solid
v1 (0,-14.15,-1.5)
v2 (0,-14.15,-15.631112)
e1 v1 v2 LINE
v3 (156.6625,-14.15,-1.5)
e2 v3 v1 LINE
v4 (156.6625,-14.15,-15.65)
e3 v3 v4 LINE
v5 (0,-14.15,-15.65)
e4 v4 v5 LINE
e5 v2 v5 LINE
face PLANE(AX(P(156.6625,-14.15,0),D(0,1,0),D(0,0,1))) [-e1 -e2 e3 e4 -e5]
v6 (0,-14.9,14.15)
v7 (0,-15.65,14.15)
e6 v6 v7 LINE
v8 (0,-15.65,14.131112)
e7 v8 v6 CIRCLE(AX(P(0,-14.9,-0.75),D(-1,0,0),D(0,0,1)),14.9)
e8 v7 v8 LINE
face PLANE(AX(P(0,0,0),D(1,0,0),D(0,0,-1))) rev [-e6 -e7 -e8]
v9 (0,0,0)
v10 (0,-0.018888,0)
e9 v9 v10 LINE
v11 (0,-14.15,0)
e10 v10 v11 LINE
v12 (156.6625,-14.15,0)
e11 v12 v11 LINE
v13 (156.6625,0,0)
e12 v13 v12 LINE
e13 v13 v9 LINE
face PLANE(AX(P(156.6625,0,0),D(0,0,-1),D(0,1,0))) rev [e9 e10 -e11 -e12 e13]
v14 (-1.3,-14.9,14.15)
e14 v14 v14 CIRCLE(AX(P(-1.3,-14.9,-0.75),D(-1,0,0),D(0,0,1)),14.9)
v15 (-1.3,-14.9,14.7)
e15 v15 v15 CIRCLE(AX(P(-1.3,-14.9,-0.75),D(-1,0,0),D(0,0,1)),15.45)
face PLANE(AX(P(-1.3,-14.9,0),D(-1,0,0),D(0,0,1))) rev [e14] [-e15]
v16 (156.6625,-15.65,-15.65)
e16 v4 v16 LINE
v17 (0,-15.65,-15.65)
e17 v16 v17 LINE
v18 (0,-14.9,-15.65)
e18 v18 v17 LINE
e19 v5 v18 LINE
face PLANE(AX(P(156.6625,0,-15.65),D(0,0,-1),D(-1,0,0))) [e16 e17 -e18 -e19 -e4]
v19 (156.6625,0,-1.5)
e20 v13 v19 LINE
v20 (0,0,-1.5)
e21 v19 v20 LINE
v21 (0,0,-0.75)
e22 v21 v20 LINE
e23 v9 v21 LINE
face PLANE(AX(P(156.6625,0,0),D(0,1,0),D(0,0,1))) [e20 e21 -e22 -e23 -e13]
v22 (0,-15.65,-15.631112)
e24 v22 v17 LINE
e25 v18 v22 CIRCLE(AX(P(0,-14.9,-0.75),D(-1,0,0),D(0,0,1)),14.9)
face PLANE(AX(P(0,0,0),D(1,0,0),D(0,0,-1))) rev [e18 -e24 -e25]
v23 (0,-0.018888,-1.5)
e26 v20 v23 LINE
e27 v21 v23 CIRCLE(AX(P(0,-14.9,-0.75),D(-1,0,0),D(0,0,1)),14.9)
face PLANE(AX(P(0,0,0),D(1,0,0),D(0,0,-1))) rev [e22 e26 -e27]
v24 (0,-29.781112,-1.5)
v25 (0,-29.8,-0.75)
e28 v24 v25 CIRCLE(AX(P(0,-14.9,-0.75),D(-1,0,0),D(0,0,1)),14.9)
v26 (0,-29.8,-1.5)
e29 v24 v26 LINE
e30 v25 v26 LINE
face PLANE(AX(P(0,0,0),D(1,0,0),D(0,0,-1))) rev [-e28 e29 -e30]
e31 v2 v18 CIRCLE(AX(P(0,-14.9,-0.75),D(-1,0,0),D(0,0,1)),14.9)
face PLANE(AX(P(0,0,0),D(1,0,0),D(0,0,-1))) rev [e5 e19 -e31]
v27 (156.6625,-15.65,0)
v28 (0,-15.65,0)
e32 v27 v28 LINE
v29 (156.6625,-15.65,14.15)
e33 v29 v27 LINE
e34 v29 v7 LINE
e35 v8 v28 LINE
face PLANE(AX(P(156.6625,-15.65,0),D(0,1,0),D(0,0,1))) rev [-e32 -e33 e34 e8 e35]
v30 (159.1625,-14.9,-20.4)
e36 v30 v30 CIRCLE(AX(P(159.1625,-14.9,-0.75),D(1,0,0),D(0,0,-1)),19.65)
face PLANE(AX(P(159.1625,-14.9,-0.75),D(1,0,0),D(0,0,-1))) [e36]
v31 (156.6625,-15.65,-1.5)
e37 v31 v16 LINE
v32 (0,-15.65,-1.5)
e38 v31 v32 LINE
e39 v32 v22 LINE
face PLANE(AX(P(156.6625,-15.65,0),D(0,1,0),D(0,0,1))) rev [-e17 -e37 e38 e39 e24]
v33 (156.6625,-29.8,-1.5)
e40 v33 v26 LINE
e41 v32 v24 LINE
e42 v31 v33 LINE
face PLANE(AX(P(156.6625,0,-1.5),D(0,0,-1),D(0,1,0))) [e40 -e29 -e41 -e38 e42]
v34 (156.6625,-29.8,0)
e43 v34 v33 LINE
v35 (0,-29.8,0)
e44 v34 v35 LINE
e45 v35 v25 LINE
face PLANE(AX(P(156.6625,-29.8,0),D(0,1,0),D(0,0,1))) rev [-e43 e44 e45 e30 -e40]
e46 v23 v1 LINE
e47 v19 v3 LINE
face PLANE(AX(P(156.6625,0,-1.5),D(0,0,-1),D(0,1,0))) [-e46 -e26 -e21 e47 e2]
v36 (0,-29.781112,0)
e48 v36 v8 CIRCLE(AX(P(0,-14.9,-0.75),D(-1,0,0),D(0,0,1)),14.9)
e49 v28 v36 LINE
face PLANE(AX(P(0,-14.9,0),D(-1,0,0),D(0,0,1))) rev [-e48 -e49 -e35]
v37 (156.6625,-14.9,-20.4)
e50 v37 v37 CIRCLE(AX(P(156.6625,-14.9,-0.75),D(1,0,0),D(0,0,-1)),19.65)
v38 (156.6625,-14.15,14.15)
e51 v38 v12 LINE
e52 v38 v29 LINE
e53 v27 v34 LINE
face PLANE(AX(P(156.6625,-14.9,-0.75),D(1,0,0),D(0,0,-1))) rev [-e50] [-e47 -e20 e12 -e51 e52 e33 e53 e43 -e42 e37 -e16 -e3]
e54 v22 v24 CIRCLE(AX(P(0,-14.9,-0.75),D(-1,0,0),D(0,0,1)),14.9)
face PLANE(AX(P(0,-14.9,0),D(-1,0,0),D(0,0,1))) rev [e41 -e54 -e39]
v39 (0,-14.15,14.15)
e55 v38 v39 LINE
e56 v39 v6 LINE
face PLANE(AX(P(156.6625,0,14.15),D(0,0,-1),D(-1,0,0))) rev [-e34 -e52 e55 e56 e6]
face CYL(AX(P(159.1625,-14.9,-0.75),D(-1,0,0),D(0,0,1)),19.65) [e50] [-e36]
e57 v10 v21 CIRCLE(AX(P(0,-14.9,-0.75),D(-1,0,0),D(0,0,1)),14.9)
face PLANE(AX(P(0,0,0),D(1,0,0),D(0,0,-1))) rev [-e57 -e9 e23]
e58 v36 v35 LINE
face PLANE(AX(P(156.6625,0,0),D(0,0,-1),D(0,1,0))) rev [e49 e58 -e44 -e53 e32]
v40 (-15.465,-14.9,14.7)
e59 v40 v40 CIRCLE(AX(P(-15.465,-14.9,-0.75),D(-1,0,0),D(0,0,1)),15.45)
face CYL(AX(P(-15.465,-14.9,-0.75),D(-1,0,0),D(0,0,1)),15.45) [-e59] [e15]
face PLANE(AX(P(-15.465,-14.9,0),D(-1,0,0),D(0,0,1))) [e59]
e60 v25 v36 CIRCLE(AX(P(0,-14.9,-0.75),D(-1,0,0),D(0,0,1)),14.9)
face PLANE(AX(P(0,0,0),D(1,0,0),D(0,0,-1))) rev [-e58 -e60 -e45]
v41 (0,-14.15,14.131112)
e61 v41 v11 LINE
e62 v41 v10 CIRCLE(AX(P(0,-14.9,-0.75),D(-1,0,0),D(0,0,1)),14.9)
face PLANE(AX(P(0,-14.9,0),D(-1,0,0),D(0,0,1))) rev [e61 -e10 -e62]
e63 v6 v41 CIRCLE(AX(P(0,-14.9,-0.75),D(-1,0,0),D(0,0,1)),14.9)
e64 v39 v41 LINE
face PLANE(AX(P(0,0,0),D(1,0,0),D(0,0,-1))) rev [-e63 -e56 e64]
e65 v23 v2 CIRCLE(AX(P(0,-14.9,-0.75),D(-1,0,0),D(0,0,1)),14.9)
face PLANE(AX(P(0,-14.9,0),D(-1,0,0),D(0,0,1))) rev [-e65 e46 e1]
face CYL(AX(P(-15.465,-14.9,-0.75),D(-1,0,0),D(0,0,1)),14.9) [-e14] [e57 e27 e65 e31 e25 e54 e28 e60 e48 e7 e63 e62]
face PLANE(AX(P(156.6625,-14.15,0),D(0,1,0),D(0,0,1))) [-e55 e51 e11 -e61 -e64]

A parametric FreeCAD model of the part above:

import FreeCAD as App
import Part
import Sketcher

V = App.Vector
Q = App.Units.Quantity


def add_polygon(sketch, points):
    """Adds a closed chain of lines whose ends are joined by coincident constraints."""
    first, n = sketch.GeometryCount, len(points)
    for a, b in zip(points, points[1:] + points[:1]):
        sketch.addGeometry(Part.LineSegment(App.Vector(*a, 0), App.Vector(*b, 0)), False)
    for i in range(n):
        sketch.addConstraint(Sketcher.Constraint("Coincident", first + i, 2, first + (i + 1) % n, 1))

doc = App.newDocument("Part")
body = doc.addObject("PartDesign::Body", "Body")

# Sketch on YZ plane
sketch1 = body.newObject("Sketcher::SketchObject", "Sketch")
sketch1.AttachmentSupport = (doc.getObject("YZ_Plane"), [""])
sketch1.MapMode = "FlatFace"
add_polygon(sketch1, [(0, 0), (-14.2, 0), (-14.2, 14.2), (-15.7, 14.2), (-15.7, 0), (-29.8, 0), (-29.8, -1.5), (-15.7, -1.5), (-15.7, -15.7), (-14.2, -15.7), (-14.2, -1.5), (0, -1.5)])  # lines 0-11
sketch1.addConstraint(Sketcher.Constraint("Horizontal", 0))
sketch1.addConstraint(Sketcher.Constraint("Vertical", 1))
sketch1.addConstraint(Sketcher.Constraint("Horizontal", 2))
sketch1.addConstraint(Sketcher.Constraint("Vertical", 3))
sketch1.addConstraint(Sketcher.Constraint("Horizontal", 4))
sketch1.addConstraint(Sketcher.Constraint("Vertical", 5))
sketch1.addConstraint(Sketcher.Constraint("Horizontal", 6))
sketch1.addConstraint(Sketcher.Constraint("Vertical", 7))
sketch1.addConstraint(Sketcher.Constraint("Horizontal", 8))
sketch1.addConstraint(Sketcher.Constraint("Vertical", 9))
sketch1.addConstraint(Sketcher.Constraint("Horizontal", 10))
sketch1.addConstraint(Sketcher.Constraint("Vertical", 11))
sketch1.addConstraint(Sketcher.Constraint("Coincident", 11, 2, -1, 1))
sketch1.addConstraint(Sketcher.Constraint("PointOnObject", 3, 2, -1))
sketch1.addConstraint(Sketcher.Constraint("Horizontal", 6, 2, 9, 2))
sketch1.addConstraint(Sketcher.Constraint("Vertical", 3, 2, 6, 2))
sketch1.addConstraint(Sketcher.Constraint("Vertical", 1, 2, 8, 2))
sketch1.addConstraint(Sketcher.Constraint("Equal", 0, 4))
sketch1.addConstraint(Sketcher.Constraint("Equal", 10, 1))
sketch1.addConstraint(Sketcher.Constraint("Equal", 8, 5))
sketch1.addConstraint(Sketcher.Constraint("Equal", 3, 7))
sketch1.addConstraint(Sketcher.Constraint("DistanceX", 2, 2, 2, 1, Q("1.5 mm")))
sketch1.addConstraint(Sketcher.Constraint("DistanceX", 0, 2, 0, 1, Q("14.15 mm")))
pad1 = body.newObject("PartDesign::Pad", "Pad")
pad1.Profile = sketch1
pad1.Length = 156.6625

# Sketch on YZ plane
sketch2 = body.newObject("Sketcher::SketchObject", "Sketch001")
sketch2.AttachmentSupport = (doc.getObject("YZ_Plane"), [""])
sketch2.MapMode = "FlatFace"
sketch2.AttachmentOffset = App.Placement(V(0, 0, 156.6625), App.Rotation())
sketch2.addGeometry(Part.Circle(V(-15, -1, 0), V(0, 0, 1), 20), False)
sketch2.addConstraint(Sketcher.Constraint("Diameter", 0, Q("39.3 mm")))
sketch2.addConstraint(Sketcher.Constraint("DistanceX", 0, 3, -1, 1, Q("14.9 mm")))
sketch2.addConstraint(Sketcher.Constraint("DistanceY", 0, 3, -1, 1, Q("0.75 mm")))
pad2 = body.newObject("PartDesign::Pad", "Pad001")
pad2.Profile = sketch2
pad2.Length = 2.5

# Sketch on XZ plane
sketch3 = body.newObject("Sketcher::SketchObject", "Sketch002")
sketch3.AttachmentSupport = (doc.getObject("XZ_Plane"), [""])
sketch3.MapMode = "FlatFace"
sketch3.AttachmentOffset = App.Placement(V(0, 0, 14.9), App.Rotation())
add_polygon(sketch3, [(-15.5, -0.8), (0, -0.8), (0, -15.7), (-1.3, -15.7), (-1.3, -16.2), (-15.5, -16.2)])  # lines 0-5
sketch3.addGeometry(Part.LineSegment(V(-15.5, -0.8, 0), V(0, -0.8, 0)), True)  # axis
sketch3.addConstraint(Sketcher.Constraint("Horizontal", 0))
sketch3.addConstraint(Sketcher.Constraint("Vertical", 1))
sketch3.addConstraint(Sketcher.Constraint("Horizontal", 2))
sketch3.addConstraint(Sketcher.Constraint("Vertical", 3))
sketch3.addConstraint(Sketcher.Constraint("Horizontal", 4))
sketch3.addConstraint(Sketcher.Constraint("Vertical", 5))
sketch3.addConstraint(Sketcher.Constraint("Horizontal", 6))
sketch3.addConstraint(Sketcher.Constraint("Coincident", 6, 1, 5, 2))
sketch3.addConstraint(Sketcher.Constraint("PointOnObject", 0, 2, -2))
sketch3.addConstraint(Sketcher.Constraint("PointOnObject", 6, 2, -2))
sketch3.addConstraint(Sketcher.Constraint("DistanceX", 2, 2, 2, 1, Q("1.3 mm")))
sketch3.addConstraint(Sketcher.Constraint("DistanceY", 1, 2, 1, 1, Q("14.9 mm")))
sketch3.addConstraint(Sketcher.Constraint("DistanceY", 3, 2, 3, 1, Q("0.55 mm")))
sketch3.addConstraint(Sketcher.Constraint("DistanceY", 3, 2, -1, 1, Q("16.2 mm")))
sketch3.addConstraint(Sketcher.Constraint("DistanceX", 0, 1, 0, 2, Q("15.465 mm")))
revolution = body.newObject("PartDesign::Revolution", "Revolution")
revolution.Profile = sketch3
revolution.ReferenceAxis = (sketch3, ["Axis0"])
revolution.Angle = 360

doc.recompute()
